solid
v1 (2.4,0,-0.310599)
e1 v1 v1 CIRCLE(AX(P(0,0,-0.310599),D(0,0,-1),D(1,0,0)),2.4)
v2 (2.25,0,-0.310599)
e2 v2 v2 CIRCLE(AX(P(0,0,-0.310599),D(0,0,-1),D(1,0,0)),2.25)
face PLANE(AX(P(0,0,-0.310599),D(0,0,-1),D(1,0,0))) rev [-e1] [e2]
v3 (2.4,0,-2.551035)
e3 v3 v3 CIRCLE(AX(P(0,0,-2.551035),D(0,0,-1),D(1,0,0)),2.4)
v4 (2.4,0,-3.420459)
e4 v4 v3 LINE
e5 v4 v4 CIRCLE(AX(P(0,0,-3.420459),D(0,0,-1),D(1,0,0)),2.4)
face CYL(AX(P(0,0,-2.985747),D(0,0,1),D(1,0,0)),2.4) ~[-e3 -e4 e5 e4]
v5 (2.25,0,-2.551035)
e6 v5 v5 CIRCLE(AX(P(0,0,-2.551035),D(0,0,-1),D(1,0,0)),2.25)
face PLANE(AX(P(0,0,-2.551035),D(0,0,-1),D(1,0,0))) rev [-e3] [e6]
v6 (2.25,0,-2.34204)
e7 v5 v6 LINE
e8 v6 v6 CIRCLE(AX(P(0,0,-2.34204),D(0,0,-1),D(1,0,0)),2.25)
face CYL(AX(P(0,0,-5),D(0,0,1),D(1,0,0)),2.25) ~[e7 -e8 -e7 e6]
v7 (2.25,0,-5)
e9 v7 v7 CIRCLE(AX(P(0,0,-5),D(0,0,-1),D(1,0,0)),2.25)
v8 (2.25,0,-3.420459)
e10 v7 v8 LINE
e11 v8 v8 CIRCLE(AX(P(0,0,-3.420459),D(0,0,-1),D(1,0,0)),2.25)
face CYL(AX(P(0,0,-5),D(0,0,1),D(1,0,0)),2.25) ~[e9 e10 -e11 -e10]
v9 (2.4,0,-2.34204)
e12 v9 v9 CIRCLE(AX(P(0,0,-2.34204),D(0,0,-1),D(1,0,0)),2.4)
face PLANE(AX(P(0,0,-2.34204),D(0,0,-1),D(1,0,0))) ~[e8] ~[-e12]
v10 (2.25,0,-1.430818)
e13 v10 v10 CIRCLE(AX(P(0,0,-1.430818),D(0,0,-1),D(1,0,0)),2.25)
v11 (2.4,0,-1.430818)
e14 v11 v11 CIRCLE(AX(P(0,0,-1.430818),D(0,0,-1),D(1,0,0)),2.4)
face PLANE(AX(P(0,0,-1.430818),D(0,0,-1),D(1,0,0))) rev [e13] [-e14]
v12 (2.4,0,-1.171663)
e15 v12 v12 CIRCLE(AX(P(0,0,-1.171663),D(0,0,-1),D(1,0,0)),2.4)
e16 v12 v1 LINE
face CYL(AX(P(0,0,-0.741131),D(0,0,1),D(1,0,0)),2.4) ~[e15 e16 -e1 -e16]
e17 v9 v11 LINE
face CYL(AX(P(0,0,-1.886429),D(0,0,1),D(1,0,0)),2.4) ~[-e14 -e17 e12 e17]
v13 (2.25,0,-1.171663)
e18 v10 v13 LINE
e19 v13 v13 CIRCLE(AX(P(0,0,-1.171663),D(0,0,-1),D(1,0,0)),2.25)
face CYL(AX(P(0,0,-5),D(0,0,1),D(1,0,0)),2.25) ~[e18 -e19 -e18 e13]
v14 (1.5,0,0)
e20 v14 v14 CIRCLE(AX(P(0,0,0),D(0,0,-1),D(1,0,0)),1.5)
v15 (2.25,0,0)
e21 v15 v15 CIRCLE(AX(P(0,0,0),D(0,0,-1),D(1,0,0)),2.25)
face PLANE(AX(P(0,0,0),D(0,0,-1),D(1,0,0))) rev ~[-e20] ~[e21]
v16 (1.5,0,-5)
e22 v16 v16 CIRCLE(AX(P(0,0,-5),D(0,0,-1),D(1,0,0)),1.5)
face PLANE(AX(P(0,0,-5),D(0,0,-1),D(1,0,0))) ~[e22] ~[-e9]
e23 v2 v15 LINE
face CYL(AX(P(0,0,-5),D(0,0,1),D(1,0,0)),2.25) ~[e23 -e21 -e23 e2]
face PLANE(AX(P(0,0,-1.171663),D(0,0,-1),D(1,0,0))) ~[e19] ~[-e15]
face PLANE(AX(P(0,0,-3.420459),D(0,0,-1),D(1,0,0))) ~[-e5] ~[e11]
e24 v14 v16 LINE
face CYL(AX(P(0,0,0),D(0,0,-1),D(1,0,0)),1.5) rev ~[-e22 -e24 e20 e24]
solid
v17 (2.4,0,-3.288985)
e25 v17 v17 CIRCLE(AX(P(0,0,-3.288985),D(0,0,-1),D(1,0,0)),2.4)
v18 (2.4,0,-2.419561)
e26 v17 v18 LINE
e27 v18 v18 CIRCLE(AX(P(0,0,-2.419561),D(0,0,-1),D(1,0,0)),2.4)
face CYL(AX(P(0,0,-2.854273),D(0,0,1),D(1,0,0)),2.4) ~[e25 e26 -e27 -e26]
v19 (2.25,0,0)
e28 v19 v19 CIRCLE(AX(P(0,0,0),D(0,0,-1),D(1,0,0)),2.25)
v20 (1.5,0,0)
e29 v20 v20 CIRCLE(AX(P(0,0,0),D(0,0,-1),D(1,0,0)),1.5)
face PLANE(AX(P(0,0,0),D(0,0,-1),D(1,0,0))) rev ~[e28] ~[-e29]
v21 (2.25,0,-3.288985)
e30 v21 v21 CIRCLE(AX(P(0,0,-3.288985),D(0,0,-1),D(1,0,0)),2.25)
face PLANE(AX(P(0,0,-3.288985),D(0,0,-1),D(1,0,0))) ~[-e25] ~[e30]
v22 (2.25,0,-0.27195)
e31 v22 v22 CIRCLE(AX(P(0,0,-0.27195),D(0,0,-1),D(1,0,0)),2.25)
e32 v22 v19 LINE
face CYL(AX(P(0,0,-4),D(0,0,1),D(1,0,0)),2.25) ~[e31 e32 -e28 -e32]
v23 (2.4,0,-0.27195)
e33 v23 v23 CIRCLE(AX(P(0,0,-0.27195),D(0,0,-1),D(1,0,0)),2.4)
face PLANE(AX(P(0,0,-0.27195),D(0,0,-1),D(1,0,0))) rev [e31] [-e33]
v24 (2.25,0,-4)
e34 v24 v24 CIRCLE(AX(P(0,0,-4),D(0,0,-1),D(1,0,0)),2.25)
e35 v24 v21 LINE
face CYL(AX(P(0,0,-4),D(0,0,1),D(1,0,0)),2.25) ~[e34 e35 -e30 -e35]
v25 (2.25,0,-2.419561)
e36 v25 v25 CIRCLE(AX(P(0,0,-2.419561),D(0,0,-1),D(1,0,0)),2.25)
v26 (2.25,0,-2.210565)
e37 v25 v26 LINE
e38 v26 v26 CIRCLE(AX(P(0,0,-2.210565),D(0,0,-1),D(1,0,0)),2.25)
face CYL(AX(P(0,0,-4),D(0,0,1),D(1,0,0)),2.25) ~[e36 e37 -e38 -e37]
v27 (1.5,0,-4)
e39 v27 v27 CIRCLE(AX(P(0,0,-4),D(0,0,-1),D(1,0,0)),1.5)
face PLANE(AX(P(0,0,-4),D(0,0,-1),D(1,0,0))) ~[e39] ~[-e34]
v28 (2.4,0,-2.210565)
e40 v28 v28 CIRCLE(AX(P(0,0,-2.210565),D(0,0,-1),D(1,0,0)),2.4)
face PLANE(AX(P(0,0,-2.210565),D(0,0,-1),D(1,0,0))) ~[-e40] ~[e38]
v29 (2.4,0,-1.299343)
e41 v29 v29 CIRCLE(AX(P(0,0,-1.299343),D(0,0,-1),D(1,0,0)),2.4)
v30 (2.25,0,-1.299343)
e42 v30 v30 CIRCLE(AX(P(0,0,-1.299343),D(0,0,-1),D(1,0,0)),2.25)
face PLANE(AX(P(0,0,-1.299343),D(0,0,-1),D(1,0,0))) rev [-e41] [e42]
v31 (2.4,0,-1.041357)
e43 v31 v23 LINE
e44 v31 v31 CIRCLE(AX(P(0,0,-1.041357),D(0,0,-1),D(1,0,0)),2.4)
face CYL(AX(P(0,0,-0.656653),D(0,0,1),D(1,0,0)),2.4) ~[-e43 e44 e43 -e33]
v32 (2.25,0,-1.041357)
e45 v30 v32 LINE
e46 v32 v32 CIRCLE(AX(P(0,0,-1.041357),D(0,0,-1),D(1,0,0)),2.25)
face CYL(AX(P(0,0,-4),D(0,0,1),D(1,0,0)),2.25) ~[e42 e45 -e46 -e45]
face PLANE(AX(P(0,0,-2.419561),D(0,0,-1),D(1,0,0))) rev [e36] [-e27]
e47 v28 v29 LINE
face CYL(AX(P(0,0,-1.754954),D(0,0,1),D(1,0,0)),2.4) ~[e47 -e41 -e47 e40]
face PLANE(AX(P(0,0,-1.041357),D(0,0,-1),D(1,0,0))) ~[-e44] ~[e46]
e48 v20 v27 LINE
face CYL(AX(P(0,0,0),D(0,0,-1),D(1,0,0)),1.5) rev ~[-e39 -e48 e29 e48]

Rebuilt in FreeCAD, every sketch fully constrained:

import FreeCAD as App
import Part
import Sketcher

V = App.Vector


def add_polygon(sketch, points):
    """Adds a closed chain of lines whose ends are joined by coincident constraints."""
    first, n = sketch.GeometryCount, len(points)
    for a, b in zip(points, points[1:] + points[:1]):
        sketch.addGeometry(Part.LineSegment(App.Vector(*a, 0), App.Vector(*b, 0)), False)
    for i in range(n):
        sketch.addConstraint(Sketcher.Constraint("Coincident", first + i, 2, first + (i + 1) % n, 1))

doc = App.newDocument("Part")
params = doc.addObject("Spreadsheet::Sheet", "Params")
for row, (alias, value) in enumerate([
    ("sketch1_height", "5 mm"),
    ("sketch1_width", "0.75 mm"),
    ("sketch1_width2", "0.15 mm"),
    ("revolution_angle", "360 deg"),
    ("sketch2_height", "4 mm"),
    ("sketch2_width", "0.75 mm"),
    ("sketch2_width2", "0.15 mm"),
    ("revolution2_angle", "360 deg"),
], start=1):
    params.set(f"A{row}", alias)
    params.set(f"B{row}", "=" + value)
    params.setAlias(f"B{row}", alias)

body = doc.addObject("PartDesign::Body", "Body")

# Sketch on XZ plane
sketch1 = body.newObject("Sketcher::SketchObject", "Sketch")
sketch1.AttachmentSupport = (doc.getObject("XZ_Plane"), [""])
sketch1.MapMode = "FlatFace"
add_polygon(sketch1, [(2.25, 0), (1.5, 0), (1.5, -5), (2.25, -5), (2.25, -3.420459), (2.4, -3.420459), (2.4, -2.551035), (2.25, -2.551035), (2.25, -2.34204), (2.4, -2.34204), (2.4, -1.430818), (2.25, -1.430818), (2.25, -1.171663), (2.4, -1.171663), (2.4, -0.310599), (2.25, -0.310599)])  # lines 0-15
sketch1.addConstraint(Sketcher.Constraint("Horizontal", 0))
sketch1.addConstraint(Sketcher.Constraint("Vertical", 1))
sketch1.addConstraint(Sketcher.Constraint("Horizontal", 2))
sketch1.addConstraint(Sketcher.Constraint("Vertical", 3))
sketch1.addConstraint(Sketcher.Constraint("Horizontal", 4))
sketch1.addConstraint(Sketcher.Constraint("Vertical", 5))
sketch1.addConstraint(Sketcher.Constraint("Horizontal", 6))
sketch1.addConstraint(Sketcher.Constraint("Vertical", 7))
sketch1.addConstraint(Sketcher.Constraint("Horizontal", 8))
sketch1.addConstraint(Sketcher.Constraint("Vertical", 9))
sketch1.addConstraint(Sketcher.Constraint("Horizontal", 10))
sketch1.addConstraint(Sketcher.Constraint("Vertical", 11))
sketch1.addConstraint(Sketcher.Constraint("Horizontal", 12))
sketch1.addConstraint(Sketcher.Constraint("Vertical", 13))
sketch1.addConstraint(Sketcher.Constraint("Horizontal", 14))
sketch1.addConstraint(Sketcher.Constraint("Vertical", 15))
sketch1.addConstraint(Sketcher.Constraint("PointOnObject", 0, 2, -1))
sketch1.addConstraint(Sketcher.Constraint("Vertical", 3, 2, 6, 2))
sketch1.addConstraint(Sketcher.Constraint("Vertical", 5, 2, 8, 2))
sketch1.addConstraint(Sketcher.Constraint("Vertical", 7, 2, 10, 2))
sketch1.addConstraint(Sketcher.Constraint("Vertical", 9, 2, 12, 2))
sketch1.addConstraint(Sketcher.Constraint("Vertical", 11, 2, 14, 2))
sketch1.addConstraint(Sketcher.Constraint("DistanceY", 1, 2, 1, 1, 5.0))
sketch1.addConstraint(Sketcher.Constraint("DistanceX", 0, 2, 0, 1, 0.75))
sketch1.addConstraint(Sketcher.Constraint("DistanceX", 4, 1, 4, 2, 0.15))
sketch1.addConstraint(Sketcher.Constraint("DistanceX", -1, 1, 0, 2, 1.5))
sketch1.addConstraint(Sketcher.Constraint("DistanceY", 15, 1, 15, 2, 0.310599))
sketch1.addConstraint(Sketcher.Constraint("DistanceY", 3, 1, 3, 2, 1.579541))
sketch1.addConstraint(Sketcher.Constraint("DistanceY", 9, 1, 9, 2, 0.911222))
sketch1.addConstraint(Sketcher.Constraint("DistanceY", 5, 1, 5, 2, 0.869423))
sketch1.addConstraint(Sketcher.Constraint("DistanceY", 7, 1, 7, 2, 0.208995))
sketch1.addConstraint(Sketcher.Constraint("DistanceY", 11, 1, 11, 2, 0.259155))
sketch1.setExpression("Constraints[38]", "Params.sketch1_height")
sketch1.setExpression("Constraints[39]", "Params.sketch1_width")
sketch1.setExpression("Constraints[40]", "Params.sketch1_width2")
revolution = body.newObject("PartDesign::Revolution", "Revolution")
revolution.Profile = sketch1
revolution.ReferenceAxis = (sketch1, ["V_Axis"])
revolution.setExpression("Angle", "Params.revolution_angle")
body2 = doc.addObject("PartDesign::Body", "Body001")

# Sketch on XZ plane
sketch2 = body2.newObject("Sketcher::SketchObject", "Sketch001")
sketch2.AttachmentSupport = (doc.getObject("XZ_Plane001"), [""])
sketch2.MapMode = "FlatFace"
add_polygon(sketch2, [(2.25, 0), (1.5, 0), (1.5, -4), (2.25, -4), (2.25, -3.288985), (2.4, -3.288985), (2.4, -2.419561), (2.25, -2.419561), (2.25, -2.210565), (2.4, -2.210565), (2.4, -1.299343), (2.25, -1.299343), (2.25, -1.041357), (2.4, -1.041357), (2.4, -0.27195), (2.25, -0.27195)])  # lines 0-15
sketch2.addConstraint(Sketcher.Constraint("Horizontal", 0))
sketch2.addConstraint(Sketcher.Constraint("Vertical", 1))
sketch2.addConstraint(Sketcher.Constraint("Horizontal", 2))
sketch2.addConstraint(Sketcher.Constraint("Vertical", 3))
sketch2.addConstraint(Sketcher.Constraint("Horizontal", 4))
sketch2.addConstraint(Sketcher.Constraint("Vertical", 5))
sketch2.addConstraint(Sketcher.Constraint("Horizontal", 6))
sketch2.addConstraint(Sketcher.Constraint("Vertical", 7))
sketch2.addConstraint(Sketcher.Constraint("Horizontal", 8))
sketch2.addConstraint(Sketcher.Constraint("Vertical", 9))
sketch2.addConstraint(Sketcher.Constraint("Horizontal", 10))
sketch2.addConstraint(Sketcher.Constraint("Vertical", 11))
sketch2.addConstraint(Sketcher.Constraint("Horizontal", 12))
sketch2.addConstraint(Sketcher.Constraint("Vertical", 13))
sketch2.addConstraint(Sketcher.Constraint("Horizontal", 14))
sketch2.addConstraint(Sketcher.Constraint("Vertical", 15))
sketch2.addConstraint(Sketcher.Constraint("PointOnObject", 0, 2, -1))
sketch2.addConstraint(Sketcher.Constraint("Vertical", 3, 2, 6, 2))
sketch2.addConstraint(Sketcher.Constraint("Vertical", 5, 2, 8, 2))
sketch2.addConstraint(Sketcher.Constraint("Vertical", 7, 2, 10, 2))
sketch2.addConstraint(Sketcher.Constraint("Vertical", 9, 2, 12, 2))
sketch2.addConstraint(Sketcher.Constraint("Vertical", 11, 2, 14, 2))
sketch2.addConstraint(Sketcher.Constraint("DistanceY", 1, 2, 1, 1, 4.0))
sketch2.addConstraint(Sketcher.Constraint("DistanceX", 0, 2, 0, 1, 0.75))
sketch2.addConstraint(Sketcher.Constraint("DistanceX", 4, 1, 4, 2, 0.15))
sketch2.addConstraint(Sketcher.Constraint("DistanceX", -1, 1, 0, 2, 1.5))
sketch2.addConstraint(Sketcher.Constraint("DistanceY", 15, 1, 15, 2, 0.27195))
sketch2.addConstraint(Sketcher.Constraint("DistanceY", 3, 1, 3, 2, 0.711015))
sketch2.addConstraint(Sketcher.Constraint("DistanceY", 5, 1, 5, 2, 0.869423))
sketch2.addConstraint(Sketcher.Constraint("DistanceY", 7, 1, 7, 2, 0.208996))
sketch2.addConstraint(Sketcher.Constraint("DistanceY", 9, 1, 9, 2, 0.911223))
sketch2.addConstraint(Sketcher.Constraint("DistanceY", 11, 1, 11, 2, 0.257986))
sketch2.setExpression("Constraints[38]", "Params.sketch2_height")
sketch2.setExpression("Constraints[39]", "Params.sketch2_width")
sketch2.setExpression("Constraints[40]", "Params.sketch2_width2")
revolution2 = body2.newObject("PartDesign::Revolution", "Revolution001")
revolution2.Profile = sketch2
revolution2.ReferenceAxis = (sketch2, ["V_Axis"])
revolution2.setExpression("Angle", "Params.revolution2_angle")

doc.recompute()
